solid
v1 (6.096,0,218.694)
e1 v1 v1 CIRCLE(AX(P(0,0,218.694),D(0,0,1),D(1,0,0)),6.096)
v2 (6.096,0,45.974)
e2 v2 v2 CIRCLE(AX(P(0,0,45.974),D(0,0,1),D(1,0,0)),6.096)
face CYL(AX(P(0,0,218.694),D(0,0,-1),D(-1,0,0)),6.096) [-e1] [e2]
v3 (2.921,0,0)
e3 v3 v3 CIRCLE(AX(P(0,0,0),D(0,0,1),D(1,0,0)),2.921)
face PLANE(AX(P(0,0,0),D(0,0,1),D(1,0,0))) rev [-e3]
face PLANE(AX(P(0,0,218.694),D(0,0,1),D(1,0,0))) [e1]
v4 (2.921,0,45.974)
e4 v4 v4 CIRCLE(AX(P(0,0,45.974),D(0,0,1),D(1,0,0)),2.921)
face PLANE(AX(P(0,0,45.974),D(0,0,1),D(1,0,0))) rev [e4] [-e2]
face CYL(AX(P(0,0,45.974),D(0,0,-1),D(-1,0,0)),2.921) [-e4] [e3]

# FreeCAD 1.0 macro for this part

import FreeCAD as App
import Part
import Sketcher

V = App.Vector
Q = App.Units.Quantity

doc = App.newDocument("Part")
body = doc.addObject("PartDesign::Body", "Body")

sketch1 = body.newObject("Sketcher::SketchObject", "Sketch")
sketch1.AttachmentSupport = (doc.getObject("XY_Plane"), [""])
sketch1.MapMode = "FlatFace"
sketch1.addGeometry(Part.Circle(V(0, 0, 0), V(0, 0, 1), 2.9), False)
sketch1.addConstraint([
    Sketcher.Constraint("Coincident", 0, 3, -1, 1),
    Sketcher.Constraint("Diameter", 0, Q("0.23 in")),
])
pad1 = body.newObject("PartDesign::Pad", "Pad")
pad1.Profile = sketch1
pad1.Length = Q("1.81 in")

sketch2 = body.newObject("Sketcher::SketchObject", "Sketch001")
sketch2.AttachmentSupport = (doc.getObject("XY_Plane"), [""])
sketch2.MapMode = "FlatFace"
sketch2.AttachmentOffset = App.Placement(V(0, 0, 1.81 * 25.4), App.Rotation())
sketch2.addGeometry(Part.Circle(V(0, 0, 0), V(0, 0, 1), 6), False)
sketch2.addConstraint([
    Sketcher.Constraint("Coincident", 0, 3, -1, 1),
    Sketcher.Constraint("Diameter", 0, Q("0.48 in")),
])
pad2 = body.newObject("PartDesign::Pad", "Pad001")
pad2.Profile = sketch2
pad2.Length = Q("6.8 in")

doc.recompute()
